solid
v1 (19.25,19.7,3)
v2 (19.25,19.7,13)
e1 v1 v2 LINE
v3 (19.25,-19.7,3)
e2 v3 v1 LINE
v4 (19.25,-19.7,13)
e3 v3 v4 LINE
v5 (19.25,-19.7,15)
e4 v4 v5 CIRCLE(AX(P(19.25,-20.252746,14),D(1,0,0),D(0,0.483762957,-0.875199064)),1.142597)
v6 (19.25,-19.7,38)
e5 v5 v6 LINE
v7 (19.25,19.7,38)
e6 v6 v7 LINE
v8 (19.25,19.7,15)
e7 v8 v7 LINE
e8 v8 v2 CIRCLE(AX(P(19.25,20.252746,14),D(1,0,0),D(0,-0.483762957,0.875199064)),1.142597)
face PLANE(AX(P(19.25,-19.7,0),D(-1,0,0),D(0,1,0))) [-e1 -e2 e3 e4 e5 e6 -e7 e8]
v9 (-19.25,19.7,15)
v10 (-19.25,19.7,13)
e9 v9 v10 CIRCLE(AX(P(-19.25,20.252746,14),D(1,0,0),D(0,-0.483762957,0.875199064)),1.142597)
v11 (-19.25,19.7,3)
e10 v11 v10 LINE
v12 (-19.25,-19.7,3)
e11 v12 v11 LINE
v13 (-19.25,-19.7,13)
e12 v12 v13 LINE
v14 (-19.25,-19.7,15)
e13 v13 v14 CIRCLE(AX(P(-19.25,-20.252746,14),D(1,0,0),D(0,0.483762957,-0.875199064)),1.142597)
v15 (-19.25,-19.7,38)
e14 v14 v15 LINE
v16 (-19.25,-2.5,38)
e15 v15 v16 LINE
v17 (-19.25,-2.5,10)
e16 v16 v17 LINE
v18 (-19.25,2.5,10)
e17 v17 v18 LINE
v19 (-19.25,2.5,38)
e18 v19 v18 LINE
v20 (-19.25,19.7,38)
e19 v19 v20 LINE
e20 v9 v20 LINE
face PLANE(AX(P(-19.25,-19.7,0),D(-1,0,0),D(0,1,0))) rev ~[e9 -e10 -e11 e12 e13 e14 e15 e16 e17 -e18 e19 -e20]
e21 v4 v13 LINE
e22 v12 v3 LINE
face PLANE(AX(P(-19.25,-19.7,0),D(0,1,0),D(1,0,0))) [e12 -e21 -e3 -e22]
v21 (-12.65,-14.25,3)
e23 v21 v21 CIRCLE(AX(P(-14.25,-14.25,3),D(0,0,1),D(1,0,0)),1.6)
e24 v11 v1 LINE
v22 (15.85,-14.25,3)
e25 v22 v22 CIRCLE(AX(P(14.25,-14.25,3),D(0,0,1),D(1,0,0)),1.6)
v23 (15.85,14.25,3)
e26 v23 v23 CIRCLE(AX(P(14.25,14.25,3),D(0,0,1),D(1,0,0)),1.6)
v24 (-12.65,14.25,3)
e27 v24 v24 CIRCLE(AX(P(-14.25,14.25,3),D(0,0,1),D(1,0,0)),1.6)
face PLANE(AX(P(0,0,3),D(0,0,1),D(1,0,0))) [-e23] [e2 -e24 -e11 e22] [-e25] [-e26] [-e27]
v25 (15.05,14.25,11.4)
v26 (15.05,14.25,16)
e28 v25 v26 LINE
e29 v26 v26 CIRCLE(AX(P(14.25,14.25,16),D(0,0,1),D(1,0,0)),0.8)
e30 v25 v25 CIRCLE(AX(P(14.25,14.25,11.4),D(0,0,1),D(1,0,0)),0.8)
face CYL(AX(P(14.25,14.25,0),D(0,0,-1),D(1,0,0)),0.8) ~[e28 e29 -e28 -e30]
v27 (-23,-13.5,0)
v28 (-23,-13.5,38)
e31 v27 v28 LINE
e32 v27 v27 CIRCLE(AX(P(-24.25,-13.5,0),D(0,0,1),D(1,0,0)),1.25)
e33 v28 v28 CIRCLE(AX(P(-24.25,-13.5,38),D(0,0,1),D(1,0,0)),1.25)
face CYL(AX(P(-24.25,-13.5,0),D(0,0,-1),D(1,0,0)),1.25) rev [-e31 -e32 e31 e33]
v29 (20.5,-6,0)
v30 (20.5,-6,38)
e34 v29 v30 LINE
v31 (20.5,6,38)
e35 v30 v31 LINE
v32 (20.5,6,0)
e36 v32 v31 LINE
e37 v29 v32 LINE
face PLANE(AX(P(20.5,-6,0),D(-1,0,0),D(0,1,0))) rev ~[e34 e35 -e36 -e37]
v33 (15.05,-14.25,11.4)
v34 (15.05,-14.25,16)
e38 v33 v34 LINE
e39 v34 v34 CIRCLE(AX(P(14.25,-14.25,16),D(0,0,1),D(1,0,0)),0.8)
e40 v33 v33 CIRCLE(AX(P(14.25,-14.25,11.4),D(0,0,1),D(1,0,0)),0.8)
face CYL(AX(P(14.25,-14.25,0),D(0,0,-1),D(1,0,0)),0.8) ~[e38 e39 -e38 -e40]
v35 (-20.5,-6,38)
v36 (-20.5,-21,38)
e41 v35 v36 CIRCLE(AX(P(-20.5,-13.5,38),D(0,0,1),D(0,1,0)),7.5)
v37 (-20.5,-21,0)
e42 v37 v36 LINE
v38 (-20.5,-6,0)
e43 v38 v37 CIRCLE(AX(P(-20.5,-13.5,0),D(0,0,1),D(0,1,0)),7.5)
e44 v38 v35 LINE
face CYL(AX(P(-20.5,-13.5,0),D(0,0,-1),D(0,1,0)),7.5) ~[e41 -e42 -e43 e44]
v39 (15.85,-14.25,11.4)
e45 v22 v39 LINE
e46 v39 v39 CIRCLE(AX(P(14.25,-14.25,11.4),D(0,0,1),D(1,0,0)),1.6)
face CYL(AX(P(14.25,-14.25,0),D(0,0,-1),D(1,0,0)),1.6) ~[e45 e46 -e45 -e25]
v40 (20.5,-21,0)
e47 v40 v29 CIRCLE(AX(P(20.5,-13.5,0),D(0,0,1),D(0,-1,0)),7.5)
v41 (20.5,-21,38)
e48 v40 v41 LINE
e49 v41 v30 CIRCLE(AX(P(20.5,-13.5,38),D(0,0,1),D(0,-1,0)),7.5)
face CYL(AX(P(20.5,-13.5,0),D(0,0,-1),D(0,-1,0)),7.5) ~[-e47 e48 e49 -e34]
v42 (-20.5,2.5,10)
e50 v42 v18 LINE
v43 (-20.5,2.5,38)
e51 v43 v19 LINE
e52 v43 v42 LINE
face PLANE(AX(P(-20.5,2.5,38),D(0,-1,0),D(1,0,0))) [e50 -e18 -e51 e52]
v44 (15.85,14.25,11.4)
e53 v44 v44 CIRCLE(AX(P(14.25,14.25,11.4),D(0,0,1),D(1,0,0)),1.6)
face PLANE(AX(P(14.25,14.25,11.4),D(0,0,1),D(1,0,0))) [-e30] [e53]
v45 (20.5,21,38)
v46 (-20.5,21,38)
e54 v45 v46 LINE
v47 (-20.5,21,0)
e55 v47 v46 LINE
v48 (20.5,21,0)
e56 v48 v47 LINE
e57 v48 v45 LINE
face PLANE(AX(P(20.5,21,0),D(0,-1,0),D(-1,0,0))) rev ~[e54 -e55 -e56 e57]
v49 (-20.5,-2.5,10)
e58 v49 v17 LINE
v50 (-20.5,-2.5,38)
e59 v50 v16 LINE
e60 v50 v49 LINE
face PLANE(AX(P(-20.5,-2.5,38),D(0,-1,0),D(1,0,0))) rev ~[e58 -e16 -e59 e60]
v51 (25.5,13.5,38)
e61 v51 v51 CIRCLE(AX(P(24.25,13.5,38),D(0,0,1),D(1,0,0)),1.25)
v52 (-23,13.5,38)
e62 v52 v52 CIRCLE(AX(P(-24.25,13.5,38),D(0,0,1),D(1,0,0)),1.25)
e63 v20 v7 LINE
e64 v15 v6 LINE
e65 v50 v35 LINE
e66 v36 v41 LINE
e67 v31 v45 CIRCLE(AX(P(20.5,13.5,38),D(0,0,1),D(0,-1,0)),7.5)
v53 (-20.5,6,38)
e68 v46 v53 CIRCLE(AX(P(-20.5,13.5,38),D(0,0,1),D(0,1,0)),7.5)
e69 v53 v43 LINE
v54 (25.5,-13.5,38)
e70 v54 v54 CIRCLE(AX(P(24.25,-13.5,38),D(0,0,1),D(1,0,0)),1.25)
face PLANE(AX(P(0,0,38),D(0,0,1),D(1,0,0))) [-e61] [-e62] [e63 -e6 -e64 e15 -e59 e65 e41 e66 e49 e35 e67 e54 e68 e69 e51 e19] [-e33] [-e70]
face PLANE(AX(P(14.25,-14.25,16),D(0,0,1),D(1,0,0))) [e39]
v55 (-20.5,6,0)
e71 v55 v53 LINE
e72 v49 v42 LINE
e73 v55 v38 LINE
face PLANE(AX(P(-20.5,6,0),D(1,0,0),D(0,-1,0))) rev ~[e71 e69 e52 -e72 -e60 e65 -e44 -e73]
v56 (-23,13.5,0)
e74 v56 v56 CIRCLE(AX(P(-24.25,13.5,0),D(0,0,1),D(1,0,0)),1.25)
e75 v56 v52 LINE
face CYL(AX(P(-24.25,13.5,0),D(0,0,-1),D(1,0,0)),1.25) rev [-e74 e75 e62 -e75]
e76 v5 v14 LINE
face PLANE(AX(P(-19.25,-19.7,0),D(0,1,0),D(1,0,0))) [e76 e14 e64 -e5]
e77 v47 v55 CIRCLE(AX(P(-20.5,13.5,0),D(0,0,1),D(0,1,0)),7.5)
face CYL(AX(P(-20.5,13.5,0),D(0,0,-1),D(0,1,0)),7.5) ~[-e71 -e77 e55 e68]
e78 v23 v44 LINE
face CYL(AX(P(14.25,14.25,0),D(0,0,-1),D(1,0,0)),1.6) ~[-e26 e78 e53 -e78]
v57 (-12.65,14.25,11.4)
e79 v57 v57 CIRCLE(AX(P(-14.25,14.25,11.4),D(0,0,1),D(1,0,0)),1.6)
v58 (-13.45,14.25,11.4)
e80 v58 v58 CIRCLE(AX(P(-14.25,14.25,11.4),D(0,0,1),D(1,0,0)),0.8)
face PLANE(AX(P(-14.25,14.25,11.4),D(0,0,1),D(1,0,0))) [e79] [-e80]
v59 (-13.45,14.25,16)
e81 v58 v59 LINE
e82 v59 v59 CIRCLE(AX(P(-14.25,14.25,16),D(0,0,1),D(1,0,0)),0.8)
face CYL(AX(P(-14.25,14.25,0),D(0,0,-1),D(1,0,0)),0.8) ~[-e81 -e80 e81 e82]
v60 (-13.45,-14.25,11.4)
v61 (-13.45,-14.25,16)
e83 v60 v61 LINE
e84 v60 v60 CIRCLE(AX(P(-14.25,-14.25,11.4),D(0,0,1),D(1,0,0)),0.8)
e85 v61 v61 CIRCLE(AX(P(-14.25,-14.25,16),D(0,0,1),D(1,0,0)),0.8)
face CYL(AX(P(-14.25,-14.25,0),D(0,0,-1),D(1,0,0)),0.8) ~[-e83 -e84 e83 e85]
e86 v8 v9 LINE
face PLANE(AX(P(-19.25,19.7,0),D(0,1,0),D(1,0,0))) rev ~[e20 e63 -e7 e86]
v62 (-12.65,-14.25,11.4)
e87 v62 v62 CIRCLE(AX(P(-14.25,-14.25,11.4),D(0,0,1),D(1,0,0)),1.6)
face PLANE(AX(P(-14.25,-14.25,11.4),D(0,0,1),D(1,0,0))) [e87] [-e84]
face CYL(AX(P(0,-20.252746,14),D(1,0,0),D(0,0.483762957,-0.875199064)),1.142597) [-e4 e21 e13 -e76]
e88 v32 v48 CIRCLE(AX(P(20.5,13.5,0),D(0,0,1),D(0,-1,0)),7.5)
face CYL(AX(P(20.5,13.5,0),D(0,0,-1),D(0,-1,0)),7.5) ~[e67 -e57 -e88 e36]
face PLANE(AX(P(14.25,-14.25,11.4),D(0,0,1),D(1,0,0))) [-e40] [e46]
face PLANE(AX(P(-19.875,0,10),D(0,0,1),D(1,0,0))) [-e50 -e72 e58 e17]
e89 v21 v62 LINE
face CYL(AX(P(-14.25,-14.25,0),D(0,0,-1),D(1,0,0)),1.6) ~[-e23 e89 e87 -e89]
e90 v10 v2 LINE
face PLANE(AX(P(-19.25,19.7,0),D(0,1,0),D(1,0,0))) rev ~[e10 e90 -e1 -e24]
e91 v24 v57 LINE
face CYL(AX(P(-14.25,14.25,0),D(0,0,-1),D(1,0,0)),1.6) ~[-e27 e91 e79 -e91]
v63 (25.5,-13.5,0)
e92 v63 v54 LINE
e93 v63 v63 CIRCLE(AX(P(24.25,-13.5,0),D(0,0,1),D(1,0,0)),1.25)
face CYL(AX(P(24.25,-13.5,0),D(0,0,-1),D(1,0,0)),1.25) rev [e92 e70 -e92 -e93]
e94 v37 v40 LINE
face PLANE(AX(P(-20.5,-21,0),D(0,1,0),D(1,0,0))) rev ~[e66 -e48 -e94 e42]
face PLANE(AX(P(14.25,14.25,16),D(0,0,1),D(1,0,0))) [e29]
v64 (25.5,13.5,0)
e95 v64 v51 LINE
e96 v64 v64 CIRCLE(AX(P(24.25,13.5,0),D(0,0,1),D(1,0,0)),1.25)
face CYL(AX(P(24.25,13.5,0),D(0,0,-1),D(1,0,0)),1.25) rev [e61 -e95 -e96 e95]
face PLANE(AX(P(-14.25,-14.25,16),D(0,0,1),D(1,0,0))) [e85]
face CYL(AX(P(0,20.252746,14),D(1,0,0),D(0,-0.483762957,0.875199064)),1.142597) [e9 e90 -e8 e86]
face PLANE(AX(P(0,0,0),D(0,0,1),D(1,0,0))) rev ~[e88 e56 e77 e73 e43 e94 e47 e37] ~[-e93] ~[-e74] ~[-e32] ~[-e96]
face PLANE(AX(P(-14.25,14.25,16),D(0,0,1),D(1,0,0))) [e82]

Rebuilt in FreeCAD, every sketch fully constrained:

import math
import FreeCAD as App
import Part
import Sketcher
from FreeCAD import Vector


def add_polygon(sketch, points):
    """Adds a closed chain of lines whose ends are joined by coincident constraints."""
    first, n = sketch.GeometryCount, len(points)
    for a, b in zip(points, points[1:] + points[:1]):
        sketch.addGeometry(Part.LineSegment(App.Vector(*a, 0), App.Vector(*b, 0)), False)
    for i in range(n):
        sketch.addConstraint(Sketcher.Constraint("Coincident", first + i, 2, first + (i + 1) % n, 1))

doc = App.newDocument("Part")
body = doc.addObject("PartDesign::Body", "Body")

sketch1 = body.newObject("Sketcher::SketchObject", "Sketch")
sketch1.AttachmentSupport = (doc.getObject("XY_Plane"), [""])
sketch1.MapMode = "FlatFace"
add_polygon(sketch1, [(-19.2, 19.7), (-19.2, -19.7), (19.2, -19.7), (19.2, 19.7)])
sketch1.addGeometry(Part.Circle(Vector(-14.2, -14.2, 0), Vector(0, 0, 1), 1.6), False)
sketch1.addGeometry(Part.Circle(Vector(14.2, -14.2, 0), Vector(0, 0, 1), 1.6), False)
sketch1.addGeometry(Part.Circle(Vector(-14.2, 14.2, 0), Vector(0, 0, 1), 1.6), False)
sketch1.addGeometry(Part.Circle(Vector(14.2, 14.2, 0), Vector(0, 0, 1), 1.6), False)
sketch1.addConstraint([
    Sketcher.Constraint("Vertical", 0),
    Sketcher.Constraint("Horizontal", 1),
    Sketcher.Constraint("Vertical", 2),
    Sketcher.Constraint("Horizontal", 3),
    Sketcher.Constraint("Equal", 4, 5),
    Sketcher.Constraint("Equal", 5, 6),
    Sketcher.Constraint("Equal", 6, 7),
    Sketcher.Constraint("Symmetric", 5, 3, 6, 3, -1, 1),
    Sketcher.Constraint("Symmetric", 4, 3, 7, 3, -1, 1),
    Sketcher.Constraint("Symmetric", 0, 2, 2, 2, -1, 1),
    Sketcher.Constraint("Symmetric", 4, 3, 5, 3, -2),
    Sketcher.Constraint("Diameter", 4, 3.2),
    Sketcher.Constraint("DistanceX", 1, 1, 1, 2, 38.5),
    Sketcher.Constraint("DistanceY", 0, 2, 0, 1, 39.4),
    Sketcher.Constraint("DistanceX", 0, 2, 4, 3, 5.0),
    Sketcher.Constraint("DistanceY", 4, 3, 6, 3, 28.5),
])
pad1 = body.newObject("PartDesign::Pad", "Pad")
pad1.Profile = sketch1
pad1.Length = 3

sketch2 = body.newObject("Sketcher::SketchObject", "Sketch001")
sketch2.AttachmentSupport = (doc.getObject("XY_Plane"), [""])
sketch2.MapMode = "FlatFace"
sketch2.addGeometry([
    Part.Circle(Vector(-14.2, 14.2, 0), Vector(0, 0, 1), 1.6),
    Part.Circle(Vector(-14.2, 14.2, 0), Vector(0, 0, 1), 0.8),
    Part.Circle(Vector(-14.2, -14.2, 0), Vector(0, 0, 1), 1.6),
    Part.Circle(Vector(-14.2, -14.2, 0), Vector(0, 0, 1), 0.8),
    Part.Circle(Vector(14.2, -14.2, 0), Vector(0, 0, 1), 1.6),
    Part.Circle(Vector(14.2, -14.2, 0), Vector(0, 0, 1), 0.8),
    Part.Circle(Vector(14.2, 14.2, 0), Vector(0, 0, 1), 1.6),
    Part.Circle(Vector(14.2, 14.2, 0), Vector(0, 0, 1), 0.8),
], False)
sketch2.addConstraint([
    Sketcher.Constraint("Coincident", 1, 3, 0, 3),
    Sketcher.Constraint("Coincident", 3, 3, 2, 3),
    Sketcher.Constraint("Coincident", 5, 3, 4, 3),
    Sketcher.Constraint("Coincident", 7, 3, 6, 3),
    Sketcher.Constraint("Equal", 0, 2),
    Sketcher.Constraint("Equal", 1, 3),
    Sketcher.Constraint("Equal", 2, 4),
    Sketcher.Constraint("Equal", 3, 5),
    Sketcher.Constraint("Equal", 4, 6),
    Sketcher.Constraint("Equal", 5, 7),
    Sketcher.Constraint("Symmetric", 0, 3, 4, 3, -1, 1),
    Sketcher.Constraint("Symmetric", 2, 3, 6, 3, -1, 1),
    Sketcher.Constraint("Symmetric", 2, 3, 4, 3, -2),
    Sketcher.Constraint("Diameter", 0, 3.2),
    Sketcher.Constraint("Diameter", 1, 1.6),
    Sketcher.Constraint("DistanceY", 2, 3, 0, 3, 28.5),
    Sketcher.Constraint("DistanceX", 2, 3, 4, 3, 28.5),
])
pad2 = body.newObject("PartDesign::Pad", "Pad001")
pad2.Profile = sketch2
pad2.Length = 11.4

sketch3 = body.newObject("Sketcher::SketchObject", "Sketch002")
sketch3.AttachmentSupport = (doc.getObject("XY_Plane"), [""])
sketch3.MapMode = "FlatFace"
sketch3.addGeometry([
    Part.Circle(Vector(-14.2, 14.2, 0), Vector(0, 0, 1), 0.8),
    Part.Circle(Vector(-14.2, -14.2, 0), Vector(0, 0, 1), 0.8),
    Part.Circle(Vector(14.2, -14.2, 0), Vector(0, 0, 1), 0.8),
    Part.Circle(Vector(14.2, 14.2, 0), Vector(0, 0, 1), 0.8),
], False)
sketch3.addConstraint([
    Sketcher.Constraint("Equal", 0, 1),
    Sketcher.Constraint("Equal", 1, 2),
    Sketcher.Constraint("Equal", 2, 3),
    Sketcher.Constraint("Symmetric", 0, 3, 2, 3, -1, 1),
    Sketcher.Constraint("Symmetric", 1, 3, 3, 3, -1, 1),
    Sketcher.Constraint("Symmetric", 1, 3, 2, 3, -2),
    Sketcher.Constraint("Diameter", 0, 1.6),
    Sketcher.Constraint("DistanceY", 1, 3, 0, 3, 28.5),
    Sketcher.Constraint("DistanceX", 1, 3, 2, 3, 28.5),
])
pad3 = body.newObject("PartDesign::Pad", "Pad002")
pad3.Profile = sketch3
pad3.Length = 16

sketch4 = body.newObject("Sketcher::SketchObject", "Sketch003")
sketch4.AttachmentSupport = (doc.getObject("XY_Plane"), [""])
sketch4.MapMode = "FlatFace"
sketch4.addGeometry(Part.LineSegment(Vector(20.5, 21, 0), Vector(-20.5, 21, 0)), False)
sketch4.addGeometry(Part.ArcOfCircle(Part.Circle(Vector(-20.5, 13.5, 0), Vector(0, 0, 1), 7.5), math.radians(90), math.radians(270)), False)
sketch4.addGeometry(Part.LineSegment(Vector(-20.5, 6, 0), Vector(-20.5, -6, 0)), False)
sketch4.addGeometry(Part.ArcOfCircle(Part.Circle(Vector(-20.5, -13.5, 0), Vector(0, 0, 1), 7.5), math.radians(90), math.radians(270)), False)
sketch4.addGeometry(Part.LineSegment(Vector(-20.5, -21, 0), Vector(20.5, -21, 0)), False)
sketch4.addGeometry(Part.ArcOfCircle(Part.Circle(Vector(20.5, -13.5, 0), Vector(0, 0, 1), 7.5), math.radians(-90), math.radians(90)), False)
sketch4.addGeometry(Part.LineSegment(Vector(20.5, -6, 0), Vector(20.5, 6, 0)), False)
sketch4.addGeometry(Part.ArcOfCircle(Part.Circle(Vector(20.5, 13.5, 0), Vector(0, 0, 1), 7.5), math.radians(-90), math.radians(90)), False)
sketch4.addGeometry(Part.Circle(Vector(-24.2, -13.5, 0), Vector(0, 0, 1), 1.2), False)
sketch4.addGeometry(Part.Circle(Vector(24.2, -13.5, 0), Vector(0, 0, 1), 1.2), False)
sketch4.addGeometry(Part.Circle(Vector(-24.2, 13.5, 0), Vector(0, 0, 1), 1.2), False)
add_polygon(sketch4, [(19.2, -19.7), (-19.2, -19.7), (-19.2, 19.7), (19.2, 19.7)])
sketch4.addGeometry(Part.Circle(Vector(24.2, 13.5, 0), Vector(0, 0, 1), 1.2), False)
sketch4.addConstraint([
    Sketcher.Constraint("Tangent", 0, 2, 1, 1),
    Sketcher.Constraint("Coincident", 1, 2, 2, 1),
    Sketcher.Constraint("Coincident", 2, 2, 3, 1),
    Sketcher.Constraint("Tangent", 3, 2, 4, 1),
    Sketcher.Constraint("Tangent", 4, 2, 5, 1),
    Sketcher.Constraint("Coincident", 5, 2, 6, 1),
    Sketcher.Constraint("Coincident", 6, 2, 7, 1),
    Sketcher.Constraint("Tangent", 7, 2, 0, 1),
    Sketcher.Constraint("Horizontal", 0),
    Sketcher.Constraint("Vertical", 2),
    Sketcher.Constraint("Horizontal", 4),
    Sketcher.Constraint("Vertical", 6),
    Sketcher.Constraint("Horizontal", 11),
    Sketcher.Constraint("Vertical", 12),
    Sketcher.Constraint("Horizontal", 13),
    Sketcher.Constraint("Vertical", 14),
    Sketcher.Constraint("Equal", 1, 3),
    Sketcher.Constraint("Equal", 3, 5),
    Sketcher.Constraint("Equal", 5, 7),
    Sketcher.Constraint("Equal", 8, 9),
    Sketcher.Constraint("Equal", 9, 10),
    Sketcher.Constraint("Equal", 10, 15),
    Sketcher.Constraint("Symmetric", 1, 3, 5, 3, -1, 1),
    Sketcher.Constraint("Symmetric", 9, 3, 10, 3, -1, 1),
    Sketcher.Constraint("Symmetric", 8, 3, 15, 3, -1, 1),
    Sketcher.Constraint("Symmetric", 11, 2, 13, 2, -1, 1),
    Sketcher.Constraint("Symmetric", 8, 3, 9, 3, -2),
    Sketcher.Constraint("Horizontal", 5, 3, 8, 3),
    Sketcher.Constraint("Vertical", 1, 3, 3, 3),
    Sketcher.Constraint("Vertical", 5, 3, 7, 3),
    Sketcher.Constraint("Vertical", 0, 2, 1, 2),
    Sketcher.Constraint("Vertical", 4, 2, 5, 2),
    Sketcher.Constraint("Diameter", 8, 2.5),
    Sketcher.Constraint("Radius", 1, 7.5),
    Sketcher.Constraint("DistanceX", 0, 2, 0, 1, 41.0),
    Sketcher.Constraint("DistanceY", 2, 2, 2, 1, 12.0),
    Sketcher.Constraint("DistanceX", 11, 2, 11, 1, 38.5),
    Sketcher.Constraint("DistanceY", 12, 1, 12, 2, 39.4),
    Sketcher.Constraint("DistanceX", 8, 3, 11, 2, 5.0),
])
pad4 = body.newObject("PartDesign::Pad", "Pad003")
pad4.Profile = sketch4
pad4.Length = 38

sketch5 = body.newObject("Sketcher::SketchObject", "Sketch004")
sketch5.AttachmentSupport = (doc.getObject("XY_Plane"), [""])
sketch5.MapMode = "FlatFace"
sketch5.AttachmentOffset = App.Placement(Vector(0, 0, 38), App.Rotation())
add_polygon(sketch5, [(-20.5, 2.5), (-20.5, -2.5), (-19.2, -2.5), (-19.2, 2.5)])
sketch5.addConstraint([
    Sketcher.Constraint("Vertical", 0),
    Sketcher.Constraint("Horizontal", 1),
    Sketcher.Constraint("Vertical", 2),
    Sketcher.Constraint("Horizontal", 3),
    Sketcher.Constraint("DistanceY", 0, 2, 0, 1, 5.0),
    Sketcher.Constraint("DistanceX", 1, 1, 1, 2, 1.25),
    Sketcher.Constraint("DistanceX", 0, 2, -1, 1, 20.5),
    Sketcher.Constraint("DistanceY", 0, 2, -1, 1, 2.5),
])
pocket1 = body.newObject("PartDesign::Pocket", "Pocket")
pocket1.Profile = sketch5
pocket1.Length = 28

sketch6 = body.newObject("Sketcher::SketchObject", "Sketch005")
sketch6.AttachmentSupport = (doc.getObject("YZ_Plane"), [""])
sketch6.MapMode = "FlatFace"
sketch6.addGeometry([
    Part.LineSegment(Vector(19.7, 13, 0), Vector(19.7, 15, 0)),
    Part.ArcOfCircle(Part.Circle(Vector(20.3, 14, 0), Vector(0, 0, 1), 1.1), math.radians(119), math.radians(241)),
    Part.ArcOfCircle(Part.Circle(Vector(-20.3, 14, 0), Vector(0, 0, 1), 1.1), math.radians(-61), math.radians(61)),
    Part.LineSegment(Vector(-19.7, 15, 0), Vector(-19.7, 13, 0)),
], False)
sketch6.addConstraint([
    Sketcher.Constraint("Coincident", 0, 1, 1, 2),
    Sketcher.Constraint("Coincident", 1, 1, 0, 2),
    Sketcher.Constraint("Coincident", 2, 1, 3, 2),
    Sketcher.Constraint("Coincident", 3, 1, 2, 2),
    Sketcher.Constraint("Vertical", 0),
    Sketcher.Constraint("Vertical", 3),
    Sketcher.Constraint("Equal", 1, 2),
    Sketcher.Constraint("Symmetric", 1, 3, 2, 3, -2),
    Sketcher.Constraint("Horizontal", 0, 1, 2, 1),
    Sketcher.Constraint("DistanceY", 0, 1, 0, 2, 2.0),
    Sketcher.Constraint("DistanceY", -1, 1, 1, 3, 14.0),
    Sketcher.Constraint("DistanceX", -1, 1, 0, 1, 19.7),
    Sketcher.Constraint("Radius", 1, 1.142597),
])
pad5 = body.newObject("PartDesign::Pad", "Pad004")
pad5.Profile = sketch6
pad5.Type = "TwoLengths"
pad5.Length = 19.25
pad5.Length2 = 19.25

doc.recompute()
